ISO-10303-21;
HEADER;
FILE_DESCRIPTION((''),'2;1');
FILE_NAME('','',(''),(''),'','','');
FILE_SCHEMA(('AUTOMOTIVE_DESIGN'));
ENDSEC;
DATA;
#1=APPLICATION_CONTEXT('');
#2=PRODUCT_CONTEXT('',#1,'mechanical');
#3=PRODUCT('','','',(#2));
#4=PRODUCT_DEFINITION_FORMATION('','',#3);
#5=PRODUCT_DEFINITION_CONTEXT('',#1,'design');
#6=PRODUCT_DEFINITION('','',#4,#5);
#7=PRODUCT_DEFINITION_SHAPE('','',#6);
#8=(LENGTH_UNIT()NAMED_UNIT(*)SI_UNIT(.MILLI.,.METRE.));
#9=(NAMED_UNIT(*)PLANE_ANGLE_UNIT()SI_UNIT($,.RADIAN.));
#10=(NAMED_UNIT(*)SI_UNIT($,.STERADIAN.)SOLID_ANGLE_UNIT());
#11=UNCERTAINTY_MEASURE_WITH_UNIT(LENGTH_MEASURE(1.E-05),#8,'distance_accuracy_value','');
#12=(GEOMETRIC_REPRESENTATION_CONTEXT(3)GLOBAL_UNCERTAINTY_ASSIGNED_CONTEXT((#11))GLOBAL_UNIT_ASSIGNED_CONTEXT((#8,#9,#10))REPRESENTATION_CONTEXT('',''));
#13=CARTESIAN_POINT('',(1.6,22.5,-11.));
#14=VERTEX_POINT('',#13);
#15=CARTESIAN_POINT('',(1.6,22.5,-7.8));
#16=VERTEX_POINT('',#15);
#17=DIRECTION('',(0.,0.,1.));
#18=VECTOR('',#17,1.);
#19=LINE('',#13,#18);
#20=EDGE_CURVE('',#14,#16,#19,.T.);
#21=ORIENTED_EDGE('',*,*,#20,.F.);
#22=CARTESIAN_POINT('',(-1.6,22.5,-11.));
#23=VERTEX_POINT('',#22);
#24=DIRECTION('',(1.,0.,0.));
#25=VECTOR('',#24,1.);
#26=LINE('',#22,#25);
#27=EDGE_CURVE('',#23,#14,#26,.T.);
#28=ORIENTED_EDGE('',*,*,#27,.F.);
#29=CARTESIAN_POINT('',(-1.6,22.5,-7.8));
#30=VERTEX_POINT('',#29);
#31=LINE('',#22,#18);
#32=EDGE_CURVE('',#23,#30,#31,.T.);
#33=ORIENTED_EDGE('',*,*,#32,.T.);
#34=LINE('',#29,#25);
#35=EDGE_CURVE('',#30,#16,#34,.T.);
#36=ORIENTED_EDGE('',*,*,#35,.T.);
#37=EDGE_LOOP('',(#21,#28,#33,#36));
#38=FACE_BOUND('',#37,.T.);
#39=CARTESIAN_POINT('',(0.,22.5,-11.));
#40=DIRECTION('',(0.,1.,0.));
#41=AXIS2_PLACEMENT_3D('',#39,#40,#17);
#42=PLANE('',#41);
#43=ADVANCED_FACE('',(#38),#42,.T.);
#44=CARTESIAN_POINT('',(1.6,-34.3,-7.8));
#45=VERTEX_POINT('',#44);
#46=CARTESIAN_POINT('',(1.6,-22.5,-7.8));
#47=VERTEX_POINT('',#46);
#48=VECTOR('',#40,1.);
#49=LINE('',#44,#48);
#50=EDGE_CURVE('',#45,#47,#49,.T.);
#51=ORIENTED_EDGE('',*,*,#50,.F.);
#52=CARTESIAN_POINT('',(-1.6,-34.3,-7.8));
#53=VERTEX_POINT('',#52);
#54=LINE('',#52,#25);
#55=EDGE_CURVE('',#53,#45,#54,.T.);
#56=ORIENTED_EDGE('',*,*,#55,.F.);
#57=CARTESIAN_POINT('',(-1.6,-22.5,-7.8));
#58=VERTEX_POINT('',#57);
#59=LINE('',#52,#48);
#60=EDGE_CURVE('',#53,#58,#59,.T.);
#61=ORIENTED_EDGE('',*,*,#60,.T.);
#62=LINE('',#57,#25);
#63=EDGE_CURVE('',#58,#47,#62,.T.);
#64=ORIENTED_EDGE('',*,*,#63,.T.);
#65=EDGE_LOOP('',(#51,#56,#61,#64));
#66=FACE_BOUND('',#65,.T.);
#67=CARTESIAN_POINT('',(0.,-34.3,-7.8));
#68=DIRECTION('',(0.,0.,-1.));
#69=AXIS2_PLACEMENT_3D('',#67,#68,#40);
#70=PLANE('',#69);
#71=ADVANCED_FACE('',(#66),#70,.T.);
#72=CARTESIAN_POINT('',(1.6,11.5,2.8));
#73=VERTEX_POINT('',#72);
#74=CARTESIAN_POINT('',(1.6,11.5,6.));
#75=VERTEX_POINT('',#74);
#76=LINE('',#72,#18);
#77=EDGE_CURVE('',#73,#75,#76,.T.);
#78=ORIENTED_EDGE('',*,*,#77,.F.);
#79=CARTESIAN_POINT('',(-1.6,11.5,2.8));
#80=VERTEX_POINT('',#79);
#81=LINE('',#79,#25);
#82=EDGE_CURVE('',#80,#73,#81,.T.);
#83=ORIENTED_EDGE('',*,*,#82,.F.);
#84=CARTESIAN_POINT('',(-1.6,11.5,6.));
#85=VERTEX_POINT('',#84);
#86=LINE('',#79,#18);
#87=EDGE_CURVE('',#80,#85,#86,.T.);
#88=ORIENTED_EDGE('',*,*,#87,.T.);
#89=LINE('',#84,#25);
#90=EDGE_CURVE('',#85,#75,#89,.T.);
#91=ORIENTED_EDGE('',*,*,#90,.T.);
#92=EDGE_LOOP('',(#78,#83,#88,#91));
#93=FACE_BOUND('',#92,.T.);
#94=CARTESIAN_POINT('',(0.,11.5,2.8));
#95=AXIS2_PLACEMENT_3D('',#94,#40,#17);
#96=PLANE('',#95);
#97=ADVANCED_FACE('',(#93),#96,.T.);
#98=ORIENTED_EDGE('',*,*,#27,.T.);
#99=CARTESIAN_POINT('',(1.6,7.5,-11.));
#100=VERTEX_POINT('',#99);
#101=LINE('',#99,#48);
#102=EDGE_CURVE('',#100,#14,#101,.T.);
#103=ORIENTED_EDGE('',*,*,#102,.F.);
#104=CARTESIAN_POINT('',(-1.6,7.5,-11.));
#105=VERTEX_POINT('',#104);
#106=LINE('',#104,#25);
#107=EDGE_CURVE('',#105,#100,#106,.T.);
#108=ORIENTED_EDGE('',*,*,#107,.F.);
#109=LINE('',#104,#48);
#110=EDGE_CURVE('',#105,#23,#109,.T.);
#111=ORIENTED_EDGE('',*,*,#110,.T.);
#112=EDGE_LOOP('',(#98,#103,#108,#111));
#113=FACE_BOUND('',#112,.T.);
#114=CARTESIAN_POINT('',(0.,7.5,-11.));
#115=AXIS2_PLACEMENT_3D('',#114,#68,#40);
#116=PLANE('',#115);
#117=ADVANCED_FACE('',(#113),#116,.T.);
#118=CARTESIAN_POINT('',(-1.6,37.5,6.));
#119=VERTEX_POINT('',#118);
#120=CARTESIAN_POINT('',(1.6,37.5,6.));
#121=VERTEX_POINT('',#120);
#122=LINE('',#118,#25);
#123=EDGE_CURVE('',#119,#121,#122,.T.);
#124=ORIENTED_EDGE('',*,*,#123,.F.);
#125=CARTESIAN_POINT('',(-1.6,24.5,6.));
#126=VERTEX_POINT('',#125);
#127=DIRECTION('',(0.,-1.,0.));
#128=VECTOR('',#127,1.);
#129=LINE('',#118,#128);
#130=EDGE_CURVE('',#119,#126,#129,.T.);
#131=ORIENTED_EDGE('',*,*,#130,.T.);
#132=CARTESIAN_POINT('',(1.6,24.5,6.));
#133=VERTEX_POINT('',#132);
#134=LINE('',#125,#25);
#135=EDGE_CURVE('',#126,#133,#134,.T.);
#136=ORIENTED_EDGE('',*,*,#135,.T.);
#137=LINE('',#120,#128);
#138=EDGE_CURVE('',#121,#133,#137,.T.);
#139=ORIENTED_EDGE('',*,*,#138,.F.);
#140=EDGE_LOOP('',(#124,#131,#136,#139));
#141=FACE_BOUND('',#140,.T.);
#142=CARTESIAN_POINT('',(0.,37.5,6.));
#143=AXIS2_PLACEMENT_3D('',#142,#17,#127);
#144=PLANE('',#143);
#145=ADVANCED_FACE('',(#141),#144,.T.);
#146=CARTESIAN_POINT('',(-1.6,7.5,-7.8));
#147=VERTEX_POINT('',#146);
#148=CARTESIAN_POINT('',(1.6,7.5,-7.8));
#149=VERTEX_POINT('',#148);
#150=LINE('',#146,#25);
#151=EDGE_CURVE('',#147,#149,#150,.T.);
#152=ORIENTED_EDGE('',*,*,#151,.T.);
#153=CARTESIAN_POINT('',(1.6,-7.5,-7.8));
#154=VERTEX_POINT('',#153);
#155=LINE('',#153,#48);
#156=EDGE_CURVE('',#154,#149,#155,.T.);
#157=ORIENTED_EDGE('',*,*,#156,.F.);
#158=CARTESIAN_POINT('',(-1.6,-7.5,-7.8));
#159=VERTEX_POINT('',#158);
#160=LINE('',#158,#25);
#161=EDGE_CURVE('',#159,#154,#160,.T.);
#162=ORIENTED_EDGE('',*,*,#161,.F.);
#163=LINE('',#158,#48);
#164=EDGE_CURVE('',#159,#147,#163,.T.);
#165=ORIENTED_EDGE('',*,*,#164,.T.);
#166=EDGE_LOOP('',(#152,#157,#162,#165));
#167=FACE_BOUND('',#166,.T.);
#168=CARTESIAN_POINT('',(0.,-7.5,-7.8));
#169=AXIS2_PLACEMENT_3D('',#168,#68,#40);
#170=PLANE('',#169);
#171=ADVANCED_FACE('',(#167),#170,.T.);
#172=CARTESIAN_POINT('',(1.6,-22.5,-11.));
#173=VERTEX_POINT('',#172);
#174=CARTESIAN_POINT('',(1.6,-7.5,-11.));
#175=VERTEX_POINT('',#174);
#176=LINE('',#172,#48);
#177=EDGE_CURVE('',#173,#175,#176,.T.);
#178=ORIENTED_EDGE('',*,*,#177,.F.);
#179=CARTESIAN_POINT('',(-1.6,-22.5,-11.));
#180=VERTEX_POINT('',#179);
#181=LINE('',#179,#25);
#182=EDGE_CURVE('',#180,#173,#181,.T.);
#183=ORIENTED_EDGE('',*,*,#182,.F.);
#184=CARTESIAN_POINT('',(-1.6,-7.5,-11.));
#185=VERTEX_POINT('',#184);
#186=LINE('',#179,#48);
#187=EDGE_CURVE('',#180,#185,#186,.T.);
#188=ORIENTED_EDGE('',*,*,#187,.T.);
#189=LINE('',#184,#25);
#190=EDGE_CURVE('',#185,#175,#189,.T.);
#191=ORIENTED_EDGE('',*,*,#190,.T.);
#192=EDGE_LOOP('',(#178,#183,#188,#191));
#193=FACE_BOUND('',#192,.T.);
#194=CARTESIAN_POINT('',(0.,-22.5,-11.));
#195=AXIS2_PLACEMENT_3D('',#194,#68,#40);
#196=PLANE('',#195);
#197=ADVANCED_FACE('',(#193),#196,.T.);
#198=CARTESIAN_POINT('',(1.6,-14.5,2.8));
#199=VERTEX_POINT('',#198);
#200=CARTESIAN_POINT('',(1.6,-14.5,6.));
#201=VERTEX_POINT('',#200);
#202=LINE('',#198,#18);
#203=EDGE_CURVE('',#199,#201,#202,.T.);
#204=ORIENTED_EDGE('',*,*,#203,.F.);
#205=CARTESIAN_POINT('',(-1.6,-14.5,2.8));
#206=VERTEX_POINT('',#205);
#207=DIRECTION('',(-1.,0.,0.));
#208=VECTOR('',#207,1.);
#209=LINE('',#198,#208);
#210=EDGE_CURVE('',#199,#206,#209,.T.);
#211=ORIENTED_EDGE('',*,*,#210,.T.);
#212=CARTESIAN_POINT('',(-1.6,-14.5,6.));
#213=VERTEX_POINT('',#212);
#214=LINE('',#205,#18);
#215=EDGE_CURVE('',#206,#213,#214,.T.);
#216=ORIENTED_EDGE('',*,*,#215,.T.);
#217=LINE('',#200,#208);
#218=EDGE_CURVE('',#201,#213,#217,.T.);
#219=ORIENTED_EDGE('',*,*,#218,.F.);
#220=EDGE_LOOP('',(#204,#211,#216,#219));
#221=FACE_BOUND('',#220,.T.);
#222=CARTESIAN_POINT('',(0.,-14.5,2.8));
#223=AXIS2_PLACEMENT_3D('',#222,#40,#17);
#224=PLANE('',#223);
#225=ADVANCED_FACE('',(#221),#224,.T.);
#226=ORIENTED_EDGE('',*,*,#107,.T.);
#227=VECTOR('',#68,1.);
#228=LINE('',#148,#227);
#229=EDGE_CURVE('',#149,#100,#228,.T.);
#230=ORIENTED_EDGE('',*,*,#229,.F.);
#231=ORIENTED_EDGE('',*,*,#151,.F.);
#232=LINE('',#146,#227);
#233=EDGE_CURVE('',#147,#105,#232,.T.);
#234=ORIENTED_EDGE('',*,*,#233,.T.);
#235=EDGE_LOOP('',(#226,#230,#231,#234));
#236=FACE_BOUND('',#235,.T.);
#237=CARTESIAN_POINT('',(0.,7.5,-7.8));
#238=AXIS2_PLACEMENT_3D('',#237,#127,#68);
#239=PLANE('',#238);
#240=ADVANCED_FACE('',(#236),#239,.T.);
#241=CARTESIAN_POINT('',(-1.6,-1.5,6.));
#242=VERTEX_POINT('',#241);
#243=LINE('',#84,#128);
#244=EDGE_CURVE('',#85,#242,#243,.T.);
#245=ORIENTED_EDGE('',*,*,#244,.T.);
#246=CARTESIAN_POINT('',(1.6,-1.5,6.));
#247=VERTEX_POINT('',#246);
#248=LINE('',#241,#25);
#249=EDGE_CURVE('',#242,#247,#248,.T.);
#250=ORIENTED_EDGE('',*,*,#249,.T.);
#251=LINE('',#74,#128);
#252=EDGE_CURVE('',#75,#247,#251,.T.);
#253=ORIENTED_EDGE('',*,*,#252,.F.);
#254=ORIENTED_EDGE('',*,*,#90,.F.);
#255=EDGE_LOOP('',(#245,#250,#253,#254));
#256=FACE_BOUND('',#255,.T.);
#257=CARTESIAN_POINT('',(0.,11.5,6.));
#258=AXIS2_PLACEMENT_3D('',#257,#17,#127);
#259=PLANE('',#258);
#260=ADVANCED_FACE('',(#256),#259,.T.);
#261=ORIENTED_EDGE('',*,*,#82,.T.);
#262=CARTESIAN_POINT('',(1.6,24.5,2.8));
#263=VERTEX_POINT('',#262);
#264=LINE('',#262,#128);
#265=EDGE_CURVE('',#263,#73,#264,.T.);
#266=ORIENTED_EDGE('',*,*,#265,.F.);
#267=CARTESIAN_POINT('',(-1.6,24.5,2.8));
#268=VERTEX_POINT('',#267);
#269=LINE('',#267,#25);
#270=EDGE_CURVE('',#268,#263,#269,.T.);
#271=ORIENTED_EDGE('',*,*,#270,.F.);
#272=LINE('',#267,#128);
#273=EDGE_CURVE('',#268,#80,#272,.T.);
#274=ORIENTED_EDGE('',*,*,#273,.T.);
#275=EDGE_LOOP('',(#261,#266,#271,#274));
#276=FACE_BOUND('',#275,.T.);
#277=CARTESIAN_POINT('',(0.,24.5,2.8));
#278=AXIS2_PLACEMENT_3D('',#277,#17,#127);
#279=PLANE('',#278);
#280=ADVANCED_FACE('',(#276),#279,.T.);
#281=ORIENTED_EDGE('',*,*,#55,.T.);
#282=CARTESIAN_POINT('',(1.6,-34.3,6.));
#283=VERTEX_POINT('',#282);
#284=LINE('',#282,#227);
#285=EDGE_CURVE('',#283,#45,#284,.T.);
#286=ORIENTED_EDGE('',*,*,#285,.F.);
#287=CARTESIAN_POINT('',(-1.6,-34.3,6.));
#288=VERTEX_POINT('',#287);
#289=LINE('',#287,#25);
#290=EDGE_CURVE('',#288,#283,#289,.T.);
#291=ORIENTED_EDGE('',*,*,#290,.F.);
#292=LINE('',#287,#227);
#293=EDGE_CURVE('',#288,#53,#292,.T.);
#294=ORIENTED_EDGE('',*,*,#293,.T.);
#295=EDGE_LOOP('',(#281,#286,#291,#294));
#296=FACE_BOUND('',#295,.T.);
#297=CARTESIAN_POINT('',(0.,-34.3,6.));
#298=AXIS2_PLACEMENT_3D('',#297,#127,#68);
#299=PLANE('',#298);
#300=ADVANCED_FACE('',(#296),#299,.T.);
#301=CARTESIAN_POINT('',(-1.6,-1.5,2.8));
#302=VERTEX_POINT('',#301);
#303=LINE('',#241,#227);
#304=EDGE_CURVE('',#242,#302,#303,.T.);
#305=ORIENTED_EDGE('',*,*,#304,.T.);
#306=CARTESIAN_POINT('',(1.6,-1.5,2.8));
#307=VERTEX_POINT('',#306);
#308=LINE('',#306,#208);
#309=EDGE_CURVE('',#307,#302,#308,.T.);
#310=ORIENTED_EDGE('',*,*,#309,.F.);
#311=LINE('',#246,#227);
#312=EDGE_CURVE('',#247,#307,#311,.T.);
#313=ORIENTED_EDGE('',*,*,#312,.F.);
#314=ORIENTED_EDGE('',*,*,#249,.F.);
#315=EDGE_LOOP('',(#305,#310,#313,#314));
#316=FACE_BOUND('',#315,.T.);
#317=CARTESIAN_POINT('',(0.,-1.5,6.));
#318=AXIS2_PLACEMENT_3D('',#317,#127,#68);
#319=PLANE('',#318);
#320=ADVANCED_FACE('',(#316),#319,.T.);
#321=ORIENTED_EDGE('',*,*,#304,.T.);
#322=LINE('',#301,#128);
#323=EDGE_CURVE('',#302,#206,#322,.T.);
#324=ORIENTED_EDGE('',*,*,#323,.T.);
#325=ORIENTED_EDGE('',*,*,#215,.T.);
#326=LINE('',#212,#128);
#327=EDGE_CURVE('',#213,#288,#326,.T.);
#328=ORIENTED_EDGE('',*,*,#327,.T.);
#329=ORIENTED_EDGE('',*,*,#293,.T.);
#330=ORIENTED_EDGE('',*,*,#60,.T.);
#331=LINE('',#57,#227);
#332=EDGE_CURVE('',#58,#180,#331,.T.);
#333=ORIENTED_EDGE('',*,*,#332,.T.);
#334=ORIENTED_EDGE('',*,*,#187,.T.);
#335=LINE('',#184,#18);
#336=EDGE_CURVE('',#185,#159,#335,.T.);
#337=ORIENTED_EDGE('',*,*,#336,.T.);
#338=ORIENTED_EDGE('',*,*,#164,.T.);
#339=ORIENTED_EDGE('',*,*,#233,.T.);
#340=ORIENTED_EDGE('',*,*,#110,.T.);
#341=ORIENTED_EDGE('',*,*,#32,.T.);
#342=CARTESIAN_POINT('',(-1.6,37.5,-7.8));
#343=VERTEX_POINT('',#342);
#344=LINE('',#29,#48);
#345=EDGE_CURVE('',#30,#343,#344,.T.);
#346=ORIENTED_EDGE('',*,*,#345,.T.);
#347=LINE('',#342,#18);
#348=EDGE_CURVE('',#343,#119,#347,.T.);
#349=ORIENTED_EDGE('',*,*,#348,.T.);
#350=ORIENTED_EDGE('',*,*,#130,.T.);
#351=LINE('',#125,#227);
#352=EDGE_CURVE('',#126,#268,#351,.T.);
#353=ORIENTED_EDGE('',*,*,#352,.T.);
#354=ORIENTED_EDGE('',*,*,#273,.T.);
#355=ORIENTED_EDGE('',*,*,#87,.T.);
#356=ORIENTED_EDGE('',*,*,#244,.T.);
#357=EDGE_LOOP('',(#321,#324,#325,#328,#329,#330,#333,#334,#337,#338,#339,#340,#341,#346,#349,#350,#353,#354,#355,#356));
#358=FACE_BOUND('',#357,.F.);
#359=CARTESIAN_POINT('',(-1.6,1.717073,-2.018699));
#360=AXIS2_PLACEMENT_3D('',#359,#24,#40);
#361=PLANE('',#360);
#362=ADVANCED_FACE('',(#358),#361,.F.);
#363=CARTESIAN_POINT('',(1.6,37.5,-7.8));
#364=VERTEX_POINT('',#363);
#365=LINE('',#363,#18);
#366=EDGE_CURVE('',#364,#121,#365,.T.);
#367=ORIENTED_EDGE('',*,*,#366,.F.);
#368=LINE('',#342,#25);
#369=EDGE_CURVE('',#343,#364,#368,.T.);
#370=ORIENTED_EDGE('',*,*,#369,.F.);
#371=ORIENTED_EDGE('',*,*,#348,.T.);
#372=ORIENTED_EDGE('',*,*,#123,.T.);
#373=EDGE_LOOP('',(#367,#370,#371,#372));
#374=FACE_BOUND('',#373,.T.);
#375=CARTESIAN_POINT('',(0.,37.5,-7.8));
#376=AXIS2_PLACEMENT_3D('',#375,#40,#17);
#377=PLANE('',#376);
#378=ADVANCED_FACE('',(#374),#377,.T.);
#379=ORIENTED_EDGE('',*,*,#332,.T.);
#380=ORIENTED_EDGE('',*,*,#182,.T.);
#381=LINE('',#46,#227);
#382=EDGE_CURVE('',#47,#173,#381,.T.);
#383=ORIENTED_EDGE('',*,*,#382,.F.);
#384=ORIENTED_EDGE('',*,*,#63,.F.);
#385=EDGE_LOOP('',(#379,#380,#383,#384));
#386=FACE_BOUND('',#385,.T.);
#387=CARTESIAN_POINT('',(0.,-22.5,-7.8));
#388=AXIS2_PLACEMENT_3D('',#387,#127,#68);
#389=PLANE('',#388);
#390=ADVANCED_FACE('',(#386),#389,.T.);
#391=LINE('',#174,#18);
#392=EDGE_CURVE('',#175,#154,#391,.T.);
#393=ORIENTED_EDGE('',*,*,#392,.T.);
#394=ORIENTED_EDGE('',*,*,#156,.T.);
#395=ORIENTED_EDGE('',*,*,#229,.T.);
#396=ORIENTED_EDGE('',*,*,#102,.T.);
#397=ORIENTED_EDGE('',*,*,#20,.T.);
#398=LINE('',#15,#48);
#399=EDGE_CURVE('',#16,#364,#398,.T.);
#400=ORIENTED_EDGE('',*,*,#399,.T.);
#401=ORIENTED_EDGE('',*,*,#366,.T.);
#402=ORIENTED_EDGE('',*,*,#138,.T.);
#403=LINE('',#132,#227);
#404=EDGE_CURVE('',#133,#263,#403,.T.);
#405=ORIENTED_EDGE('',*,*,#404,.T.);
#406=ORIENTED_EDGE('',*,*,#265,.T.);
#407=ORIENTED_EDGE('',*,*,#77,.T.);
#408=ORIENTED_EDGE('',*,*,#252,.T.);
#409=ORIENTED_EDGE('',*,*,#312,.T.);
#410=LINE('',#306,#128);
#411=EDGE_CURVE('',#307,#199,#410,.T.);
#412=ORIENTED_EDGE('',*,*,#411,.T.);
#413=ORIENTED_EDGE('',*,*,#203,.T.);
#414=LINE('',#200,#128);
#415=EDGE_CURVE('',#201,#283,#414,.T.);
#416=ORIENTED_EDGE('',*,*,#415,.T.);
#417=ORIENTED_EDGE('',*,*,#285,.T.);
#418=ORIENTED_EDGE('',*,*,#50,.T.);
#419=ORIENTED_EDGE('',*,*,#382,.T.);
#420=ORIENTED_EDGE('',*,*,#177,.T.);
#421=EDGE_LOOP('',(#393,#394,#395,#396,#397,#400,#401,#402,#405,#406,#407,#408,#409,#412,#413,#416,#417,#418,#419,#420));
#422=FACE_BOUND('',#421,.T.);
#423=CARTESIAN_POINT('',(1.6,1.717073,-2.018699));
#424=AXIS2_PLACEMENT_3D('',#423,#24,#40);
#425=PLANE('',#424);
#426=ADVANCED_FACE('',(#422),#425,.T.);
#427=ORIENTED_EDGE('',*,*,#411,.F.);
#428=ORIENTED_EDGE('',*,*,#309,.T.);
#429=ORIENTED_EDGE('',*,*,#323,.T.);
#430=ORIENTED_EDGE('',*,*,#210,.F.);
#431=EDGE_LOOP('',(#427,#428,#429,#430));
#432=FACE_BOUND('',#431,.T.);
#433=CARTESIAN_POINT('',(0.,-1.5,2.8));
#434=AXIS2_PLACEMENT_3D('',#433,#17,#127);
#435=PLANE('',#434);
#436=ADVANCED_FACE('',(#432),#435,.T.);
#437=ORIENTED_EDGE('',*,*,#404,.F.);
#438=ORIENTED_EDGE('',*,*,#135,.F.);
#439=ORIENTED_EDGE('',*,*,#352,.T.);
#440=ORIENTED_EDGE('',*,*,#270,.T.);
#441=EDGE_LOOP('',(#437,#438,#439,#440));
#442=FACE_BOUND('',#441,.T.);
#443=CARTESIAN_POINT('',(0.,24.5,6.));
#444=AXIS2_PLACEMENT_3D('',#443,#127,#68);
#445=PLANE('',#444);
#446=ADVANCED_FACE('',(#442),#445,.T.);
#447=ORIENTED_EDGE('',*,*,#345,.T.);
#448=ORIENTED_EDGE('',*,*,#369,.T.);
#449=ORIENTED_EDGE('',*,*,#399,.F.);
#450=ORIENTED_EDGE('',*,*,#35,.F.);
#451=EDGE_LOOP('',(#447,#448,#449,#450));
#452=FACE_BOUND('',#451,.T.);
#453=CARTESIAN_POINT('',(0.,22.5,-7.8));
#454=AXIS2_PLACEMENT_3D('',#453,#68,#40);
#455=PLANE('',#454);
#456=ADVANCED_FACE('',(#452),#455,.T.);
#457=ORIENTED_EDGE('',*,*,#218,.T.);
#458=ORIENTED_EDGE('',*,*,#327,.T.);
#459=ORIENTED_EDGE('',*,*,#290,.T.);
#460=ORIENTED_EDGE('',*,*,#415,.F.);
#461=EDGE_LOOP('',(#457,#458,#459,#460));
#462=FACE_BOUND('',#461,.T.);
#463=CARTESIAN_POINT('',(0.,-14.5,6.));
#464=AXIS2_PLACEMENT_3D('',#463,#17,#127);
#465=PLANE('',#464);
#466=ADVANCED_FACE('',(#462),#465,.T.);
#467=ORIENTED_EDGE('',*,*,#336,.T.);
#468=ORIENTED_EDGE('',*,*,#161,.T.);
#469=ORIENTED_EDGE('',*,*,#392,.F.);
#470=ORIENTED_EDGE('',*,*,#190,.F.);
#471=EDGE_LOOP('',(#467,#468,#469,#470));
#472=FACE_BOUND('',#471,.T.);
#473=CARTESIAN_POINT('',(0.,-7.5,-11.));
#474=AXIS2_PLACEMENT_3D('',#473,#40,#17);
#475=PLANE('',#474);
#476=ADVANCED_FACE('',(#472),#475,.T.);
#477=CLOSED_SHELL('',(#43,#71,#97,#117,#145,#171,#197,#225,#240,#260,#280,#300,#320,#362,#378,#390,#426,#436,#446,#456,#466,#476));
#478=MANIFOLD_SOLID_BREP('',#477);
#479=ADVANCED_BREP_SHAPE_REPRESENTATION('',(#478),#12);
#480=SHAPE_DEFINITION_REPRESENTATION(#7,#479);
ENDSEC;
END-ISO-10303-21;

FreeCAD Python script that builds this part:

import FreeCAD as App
import Part
import Sketcher
Q = App.Units.Quantity


def add_polygon(sketch, points):
    """Adds a closed chain of lines whose ends are joined by coincident constraints."""
    first, n = sketch.GeometryCount, len(points)
    for a, b in zip(points, points[1:] + points[:1]):
        sketch.addGeometry(Part.LineSegment(App.Vector(*a, 0), App.Vector(*b, 0)), False)
    for i in range(n):
        sketch.addConstraint(Sketcher.Constraint("Coincident", first + i, 2, first + (i + 1) % n, 1))

doc = App.newDocument("Part")
body = doc.addObject("PartDesign::Body", "Body")

# Sketch on YZ plane
sketch1 = body.newObject("Sketcher::SketchObject", "Sketch")
sketch1.AttachmentSupport = (doc.getObject("YZ_Plane"), [""])
sketch1.MapMode = "FlatFace"
add_polygon(sketch1, [(-14.5, 6), (-34.3, 6), (-34.3, -7.8), (-22.5, -7.8), (-22.5, -11), (-7.5, -11), (-7.5, -7.8), (7.5, -7.8), (7.5, -11), (22.5, -11), (22.5, -7.8), (37.5, -7.8), (37.5, 6), (24.5, 6), (24.5, 2.8), (11.5, 2.8), (11.5, 6), (-1.5, 6), (-1.5, 2.8), (-14.5, 2.8)])  # lines 0-19
sketch1.addConstraint(Sketcher.Constraint("Horizontal", 0))
sketch1.addConstraint(Sketcher.Constraint("Vertical", 1))
sketch1.addConstraint(Sketcher.Constraint("Horizontal", 2))
sketch1.addConstraint(Sketcher.Constraint("Vertical", 3))
sketch1.addConstraint(Sketcher.Constraint("Horizontal", 4))
sketch1.addConstraint(Sketcher.Constraint("Vertical", 5))
sketch1.addConstraint(Sketcher.Constraint("Horizontal", 6))
sketch1.addConstraint(Sketcher.Constraint("Vertical", 7))
sketch1.addConstraint(Sketcher.Constraint("Horizontal", 8))
sketch1.addConstraint(Sketcher.Constraint("Vertical", 9))
sketch1.addConstraint(Sketcher.Constraint("Horizontal", 10))
sketch1.addConstraint(Sketcher.Constraint("Vertical", 11))
sketch1.addConstraint(Sketcher.Constraint("Horizontal", 12))
sketch1.addConstraint(Sketcher.Constraint("Vertical", 13))
sketch1.addConstraint(Sketcher.Constraint("Horizontal", 14))
sketch1.addConstraint(Sketcher.Constraint("Vertical", 15))
sketch1.addConstraint(Sketcher.Constraint("Horizontal", 16))
sketch1.addConstraint(Sketcher.Constraint("Vertical", 17))
sketch1.addConstraint(Sketcher.Constraint("Horizontal", 18))
sketch1.addConstraint(Sketcher.Constraint("Vertical", 19))
sketch1.addConstraint(Sketcher.Constraint("Symmetric", 4, 2, 7, 2, -2))
sketch1.addConstraint(Sketcher.Constraint("Symmetric", 2, 2, 9, 2, -2))
sketch1.addConstraint(Sketcher.Constraint("Horizontal", 2, 2, 5, 2))
sketch1.addConstraint(Sketcher.Constraint("Horizontal", 0, 2, 11, 2))
sketch1.addConstraint(Sketcher.Constraint("Horizontal", 12, 2, 15, 2))
sketch1.addConstraint(Sketcher.Constraint("Horizontal", 14, 2, 17, 2))
sketch1.addConstraint(Sketcher.Constraint("Equal", 4, 6))
sketch1.addConstraint(Sketcher.Constraint("Equal", 8, 10))
sketch1.addConstraint(Sketcher.Constraint("Equal", 12, 14))
sketch1.addConstraint(Sketcher.Constraint("Equal", 14, 16))
sketch1.addConstraint(Sketcher.Constraint("Equal", 16, 18))
sketch1.addConstraint(Sketcher.Constraint("Equal", 9, 13))
sketch1.addConstraint(Sketcher.Constraint("DistanceX", 4, 1, 4, 2, Q("15 mm")))
sketch1.addConstraint(Sketcher.Constraint("DistanceX", 12, 2, 12, 1, Q("13 mm")))
sketch1.addConstraint(Sketcher.Constraint("DistanceX", 0, 2, 0, 1, Q("19.8 mm")))
sketch1.addConstraint(Sketcher.Constraint("DistanceY", 1, 2, 1, 1, Q("13.8 mm")))
sketch1.addConstraint(Sketcher.Constraint("DistanceY", 3, 2, 3, 1, Q("3.2 mm")))
sketch1.addConstraint(Sketcher.Constraint("DistanceY", -1, 1, 0, 2, Q("6 mm")))
pad1 = body.newObject("PartDesign::Pad", "Pad")
pad1.Profile = sketch1
pad1.Length = 3.2
pad1.Midplane = True

doc.recompute()
